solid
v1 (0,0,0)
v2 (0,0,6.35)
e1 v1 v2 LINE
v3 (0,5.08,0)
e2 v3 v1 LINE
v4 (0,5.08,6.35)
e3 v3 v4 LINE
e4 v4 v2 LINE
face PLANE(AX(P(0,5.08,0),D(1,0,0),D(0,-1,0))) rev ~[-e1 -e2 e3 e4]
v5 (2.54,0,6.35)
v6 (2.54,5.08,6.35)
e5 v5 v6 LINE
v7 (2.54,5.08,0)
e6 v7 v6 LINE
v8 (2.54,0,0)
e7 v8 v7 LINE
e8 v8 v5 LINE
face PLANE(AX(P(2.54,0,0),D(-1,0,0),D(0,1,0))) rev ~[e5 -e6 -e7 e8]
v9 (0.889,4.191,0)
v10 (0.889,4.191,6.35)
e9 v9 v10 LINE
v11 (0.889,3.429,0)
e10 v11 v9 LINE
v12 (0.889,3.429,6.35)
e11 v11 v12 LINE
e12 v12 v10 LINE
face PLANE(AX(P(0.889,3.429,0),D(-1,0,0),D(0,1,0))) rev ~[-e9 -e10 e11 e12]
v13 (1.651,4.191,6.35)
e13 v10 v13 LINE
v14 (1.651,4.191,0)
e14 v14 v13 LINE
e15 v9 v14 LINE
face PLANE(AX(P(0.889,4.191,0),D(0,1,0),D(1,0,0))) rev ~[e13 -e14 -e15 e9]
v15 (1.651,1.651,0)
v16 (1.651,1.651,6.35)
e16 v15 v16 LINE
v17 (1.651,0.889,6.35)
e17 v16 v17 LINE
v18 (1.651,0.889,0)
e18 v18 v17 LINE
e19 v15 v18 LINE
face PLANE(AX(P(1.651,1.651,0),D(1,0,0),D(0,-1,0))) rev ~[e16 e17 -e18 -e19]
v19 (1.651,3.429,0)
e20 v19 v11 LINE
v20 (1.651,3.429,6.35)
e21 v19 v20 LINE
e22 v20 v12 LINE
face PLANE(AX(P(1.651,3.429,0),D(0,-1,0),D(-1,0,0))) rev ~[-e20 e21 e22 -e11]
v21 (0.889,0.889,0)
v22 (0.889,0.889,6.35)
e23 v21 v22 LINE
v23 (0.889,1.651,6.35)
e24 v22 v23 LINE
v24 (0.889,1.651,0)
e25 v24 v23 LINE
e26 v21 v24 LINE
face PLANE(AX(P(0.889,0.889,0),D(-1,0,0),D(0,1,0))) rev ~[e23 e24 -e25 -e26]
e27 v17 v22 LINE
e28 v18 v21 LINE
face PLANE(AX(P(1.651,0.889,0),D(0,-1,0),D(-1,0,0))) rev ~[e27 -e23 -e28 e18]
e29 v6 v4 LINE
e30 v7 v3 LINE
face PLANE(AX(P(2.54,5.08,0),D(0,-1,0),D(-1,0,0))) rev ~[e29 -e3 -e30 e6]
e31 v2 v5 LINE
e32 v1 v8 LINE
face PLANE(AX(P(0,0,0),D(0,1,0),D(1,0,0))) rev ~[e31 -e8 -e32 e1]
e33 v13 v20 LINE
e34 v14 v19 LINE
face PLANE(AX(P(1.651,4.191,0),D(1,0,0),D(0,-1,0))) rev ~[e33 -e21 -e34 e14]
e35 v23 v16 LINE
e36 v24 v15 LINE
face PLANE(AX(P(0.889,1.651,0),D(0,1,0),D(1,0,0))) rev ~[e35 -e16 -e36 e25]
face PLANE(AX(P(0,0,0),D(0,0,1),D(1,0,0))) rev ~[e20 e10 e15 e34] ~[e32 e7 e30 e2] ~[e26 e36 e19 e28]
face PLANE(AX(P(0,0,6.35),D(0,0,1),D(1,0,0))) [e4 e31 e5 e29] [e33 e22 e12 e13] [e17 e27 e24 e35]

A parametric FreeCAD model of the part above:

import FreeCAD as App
import Part
import Sketcher

V = App.Vector
Q = App.Units.Quantity


def add_polygon(sketch, points):
    """Adds a closed chain of lines whose ends are joined by coincident constraints."""
    first, n = sketch.GeometryCount, len(points)
    for a, b in zip(points, points[1:] + points[:1]):
        sketch.addGeometry(Part.LineSegment(App.Vector(*a, 0), App.Vector(*b, 0)), False)
    for i in range(n):
        sketch.addConstraint(Sketcher.Constraint("Coincident", first + i, 2, first + (i + 1) % n, 1))

doc = App.newDocument("Part")
body = doc.addObject("PartDesign::Body", "Body")

# Sketch on XY plane
sketch1 = body.newObject("Sketcher::SketchObject", "Sketch")
sketch1.AttachmentSupport = (doc.getObject("XY_Plane"), [""])
sketch1.MapMode = "FlatFace"
add_polygon(sketch1, [(2.54, 5.08), (0, 5.08), (0, 0), (2.54, 0)])  # lines 0-3
add_polygon(sketch1, [(0.889, 0.889), (0.889, 1.651), (1.651, 1.651), (1.651, 0.889)])  # lines 4-7
add_polygon(sketch1, [(0.889, 3.429), (0.889, 4.191), (1.651, 4.191), (1.651, 3.429)])  # lines 8-11
sketch1.addConstraint([
    Sketcher.Constraint("Horizontal", 0),
    Sketcher.Constraint("Vertical", 1),
    Sketcher.Constraint("Horizontal", 2),
    Sketcher.Constraint("Vertical", 3),
    Sketcher.Constraint("Vertical", 4),
    Sketcher.Constraint("Horizontal", 5),
    Sketcher.Constraint("Vertical", 6),
    Sketcher.Constraint("Horizontal", 7),
    Sketcher.Constraint("Vertical", 8),
    Sketcher.Constraint("Horizontal", 9),
    Sketcher.Constraint("Vertical", 10),
    Sketcher.Constraint("Horizontal", 11),
    Sketcher.Constraint("Coincident", 1, 2, -1, 1),
    Sketcher.Constraint("Vertical", 7, 2, 8, 2),
    Sketcher.Constraint("Vertical", 6, 2, 9, 2),
    Sketcher.Constraint("Equal", 11, 4),
    Sketcher.Constraint("Equal", 6, 8),
    Sketcher.Constraint("DistanceX", 0, 2, 0, 1, Q("0.1 in")),
    Sketcher.Constraint("DistanceY", 1, 2, 1, 1, Q("0.2 in")),
    Sketcher.Constraint("DistanceX", 5, 1, 5, 2, Q("0.03 in")),
    Sketcher.Constraint("DistanceY", 4, 2, 8, 2, Q("0.1 in")),
    Sketcher.Constraint("DistanceX", -1, 1, 4, 2, Q("0.035 in")),
    Sketcher.Constraint("DistanceY", -1, 1, 4, 2, Q("0.065 in")),
])
pad1 = body.newObject("PartDesign::Pad", "Pad")
pad1.Profile = sketch1
pad1.Length = Q("0.25 in")

doc.recompute()
